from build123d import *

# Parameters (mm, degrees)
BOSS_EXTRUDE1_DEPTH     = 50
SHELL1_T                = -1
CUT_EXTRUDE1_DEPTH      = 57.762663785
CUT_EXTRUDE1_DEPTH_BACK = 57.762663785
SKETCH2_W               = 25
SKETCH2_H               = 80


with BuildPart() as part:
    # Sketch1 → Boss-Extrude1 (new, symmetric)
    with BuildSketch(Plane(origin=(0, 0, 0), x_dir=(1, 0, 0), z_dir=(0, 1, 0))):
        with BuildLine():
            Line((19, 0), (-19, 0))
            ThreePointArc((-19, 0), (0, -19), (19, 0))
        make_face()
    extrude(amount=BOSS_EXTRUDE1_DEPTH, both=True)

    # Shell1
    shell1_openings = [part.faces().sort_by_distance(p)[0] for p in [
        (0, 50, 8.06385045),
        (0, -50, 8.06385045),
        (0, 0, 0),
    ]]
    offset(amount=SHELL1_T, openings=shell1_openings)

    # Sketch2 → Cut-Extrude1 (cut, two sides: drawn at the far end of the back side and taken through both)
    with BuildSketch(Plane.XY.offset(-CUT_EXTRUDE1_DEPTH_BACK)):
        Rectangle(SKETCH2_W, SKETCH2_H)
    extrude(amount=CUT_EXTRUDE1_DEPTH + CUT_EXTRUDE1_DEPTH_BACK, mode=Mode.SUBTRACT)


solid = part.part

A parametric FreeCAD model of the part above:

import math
import FreeCAD as App
import Part
import Sketcher
from FreeCAD import Vector


def faces_at(feature, points):
    """Names of the faces that lie closest to the given points."""
    faces = feature.Shape.Faces
    near = lambda p: min(range(len(faces)), key=lambda i: faces[i].distToShape(Part.Vertex(*p))[0])
    return sorted({f"Face{near(p) + 1}" for p in points})

doc = App.newDocument("Part")
body = doc.addObject("PartDesign::Body", "Body")

# Sketch on XZ plane
sketch1 = doc.addObject("Sketcher::SketchObject", "Sketch")
body.addObject(sketch1)
sketch1.AttachmentSupport = (doc.XZ_Plane, [""])
sketch1.MapMode = "FlatFace"
sketch1.addGeometry([
    Part.LineSegment(Vector(19, 0, 0), Vector(-19, 0, 0)),
    Part.ArcOfCircle(Part.Circle(Vector(0, 0, 0), Vector(0, 0, 1), 19), math.radians(0), math.radians(180)),
], False)
sketch1.addConstraint([
    Sketcher.Constraint("Coincident", 0, 1, 1, 1),
    Sketcher.Constraint("Coincident", 1, 2, 0, 2),
    Sketcher.Constraint("Horizontal", 0),
    Sketcher.Constraint("Coincident", 1, 3, -1, 1),
    Sketcher.Constraint("PointOnObject", 0, 1, -1),
    Sketcher.Constraint("Radius", 1, 19.0),
])
pad1 = doc.addObject("PartDesign::Pad", "Pad")
body.addObject(pad1)
pad1.Profile = sketch1
pad1.Length = 100
pad1.Midplane = True
doc.recompute()

thickness = doc.addObject("PartDesign::Thickness", "Thickness")
body.addObject(thickness)
thickness.Base = (pad1, faces_at(pad1, [(0, 50, 9.5), (0, -50, 9.5), (0, 0, 0)]))
thickness.Value = 1
thickness.Reversed = True
thickness.Join = "Arc"

# Sketch on XY plane
sketch2 = doc.addObject("Sketcher::SketchObject", "Sketch001")
body.addObject(sketch2)
sketch2.AttachmentSupport = (doc.XY_Plane, [""])
sketch2.MapMode = "FlatFace"
sketch2.addGeometry([
    Part.LineSegment(Vector(-12, 40, 0), Vector(-12, -40, 0)),
    Part.LineSegment(Vector(-12, -40, 0), Vector(12, -40, 0)),
    Part.LineSegment(Vector(12, -40, 0), Vector(12, 40, 0)),
    Part.LineSegment(Vector(12, 40, 0), Vector(-12, 40, 0)),
], False)
sketch2.addConstraint([
    Sketcher.Constraint("Coincident", 0, 2, 1, 1),
    Sketcher.Constraint("Coincident", 1, 2, 2, 1),
    Sketcher.Constraint("Coincident", 2, 2, 3, 1),
    Sketcher.Constraint("Coincident", 3, 2, 0, 1),
    Sketcher.Constraint("Vertical", 0),
    Sketcher.Constraint("Horizontal", 1),
    Sketcher.Constraint("Vertical", 2),
    Sketcher.Constraint("Horizontal", 3),
    Sketcher.Constraint("Symmetric", 0, 2, 2, 2, -1, 1),
    Sketcher.Constraint("DistanceX", 1, 1, 1, 2, 25.0),
    Sketcher.Constraint("DistanceY", 0, 2, 0, 1, 80.0),
])
pocket1 = doc.addObject("PartDesign::Pocket", "Pocket")
body.addObject(pocket1)
pocket1.Profile = sketch2
pocket1.Type = "ThroughAll"
pocket1.Midplane = True

doc.recompute()
